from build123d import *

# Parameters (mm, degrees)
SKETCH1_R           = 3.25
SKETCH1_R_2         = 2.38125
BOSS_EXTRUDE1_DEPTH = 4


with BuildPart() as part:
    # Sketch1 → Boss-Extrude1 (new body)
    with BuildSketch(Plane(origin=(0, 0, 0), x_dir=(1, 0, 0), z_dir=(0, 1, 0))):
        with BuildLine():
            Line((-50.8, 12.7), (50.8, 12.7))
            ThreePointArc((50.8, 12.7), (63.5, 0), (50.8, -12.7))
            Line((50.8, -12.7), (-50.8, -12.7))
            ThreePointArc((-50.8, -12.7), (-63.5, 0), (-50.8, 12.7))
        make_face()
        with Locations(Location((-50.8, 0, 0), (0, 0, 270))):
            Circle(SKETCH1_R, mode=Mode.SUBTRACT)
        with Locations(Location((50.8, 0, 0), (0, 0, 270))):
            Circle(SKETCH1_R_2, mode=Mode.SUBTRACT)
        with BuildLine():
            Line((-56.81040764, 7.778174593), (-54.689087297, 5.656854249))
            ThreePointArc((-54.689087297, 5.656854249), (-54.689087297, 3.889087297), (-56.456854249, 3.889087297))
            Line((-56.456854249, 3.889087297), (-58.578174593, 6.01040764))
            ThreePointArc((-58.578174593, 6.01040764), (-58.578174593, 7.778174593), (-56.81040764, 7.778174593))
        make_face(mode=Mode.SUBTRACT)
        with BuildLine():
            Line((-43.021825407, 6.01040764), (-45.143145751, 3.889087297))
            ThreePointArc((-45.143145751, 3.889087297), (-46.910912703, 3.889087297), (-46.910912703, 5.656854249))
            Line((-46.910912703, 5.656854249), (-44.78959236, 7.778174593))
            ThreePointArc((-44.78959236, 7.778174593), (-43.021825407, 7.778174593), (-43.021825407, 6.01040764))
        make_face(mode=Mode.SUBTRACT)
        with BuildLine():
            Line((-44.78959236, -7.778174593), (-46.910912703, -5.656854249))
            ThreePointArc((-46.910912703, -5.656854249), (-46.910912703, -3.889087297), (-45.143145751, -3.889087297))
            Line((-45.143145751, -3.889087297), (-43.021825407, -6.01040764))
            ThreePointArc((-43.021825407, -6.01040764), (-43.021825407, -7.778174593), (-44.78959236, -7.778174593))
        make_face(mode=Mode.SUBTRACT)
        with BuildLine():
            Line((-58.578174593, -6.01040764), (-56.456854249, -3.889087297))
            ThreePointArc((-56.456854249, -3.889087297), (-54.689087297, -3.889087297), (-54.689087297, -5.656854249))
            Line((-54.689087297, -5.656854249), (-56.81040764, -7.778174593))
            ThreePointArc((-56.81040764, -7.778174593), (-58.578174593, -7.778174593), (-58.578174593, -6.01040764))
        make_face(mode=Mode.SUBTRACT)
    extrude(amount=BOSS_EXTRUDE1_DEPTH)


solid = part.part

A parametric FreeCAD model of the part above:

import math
import FreeCAD as App
import Part
import Sketcher
Q = App.Units.Quantity

doc = App.newDocument("Part")
params = doc.addObject("Spreadsheet::Sheet", "Params")
for row, (alias, value) in enumerate([
    ("sketch1_diameter", "6.5 mm"),
    ("sketch1_radius", "12.7 mm"),
    ("sketch1_radius2", "1.25 mm"),
    ("sketch1_length", "3 mm"),
    ("sketch1_width", "101.6 mm"),
    ("pad1_length", "4 mm"),
], start=1):
    params.set(f"A{row}", alias)
    params.set(f"B{row}", "=" + value)
    params.setAlias(f"B{row}", alias)

body = doc.addObject("PartDesign::Body", "Body")

# Sketch on XZ plane
sketch1 = doc.addObject("Sketcher::SketchObject", "Sketch")
body.addObject(sketch1)
sketch1.AttachmentSupport = (doc.XZ_Plane, [""])
sketch1.MapMode = "FlatFace"
sketch1.addGeometry([
    Part.LineSegment(App.Vector(50.8, -12.7, 0), App.Vector(-50.8, -12.7, 0)),  # 0
    Part.ArcOfCircle(Part.Circle(App.Vector(-50.8, 0, 0), App.Vector(0, 0, 1), 12.7), math.radians(90), math.radians(270)),  # 1
    Part.LineSegment(App.Vector(-50.8, 12.7, 0), App.Vector(50.8, 12.7, 0)),  # 2
    Part.ArcOfCircle(Part.Circle(App.Vector(50.8, 0, 0), App.Vector(0, 0, 1), 12.7), math.radians(-90), math.radians(90)),  # 3
    Part.Circle(App.Vector(50.8, 0, 0), App.Vector(0, 0, 1), 2.4),  # 4
    Part.LineSegment(App.Vector(-44.8, 7.8, 0), App.Vector(-46.9, 5.7, 0)),  # 5
    Part.ArcOfCircle(Part.Circle(App.Vector(-46, 4.8, 0), App.Vector(0, 0, 1), 1.2), math.radians(135), math.radians(315)),  # 6
    Part.LineSegment(App.Vector(-45.1, 3.9, 0), App.Vector(-43, 6, 0)),  # 7
    Part.ArcOfCircle(Part.Circle(App.Vector(-43.9, 6.9, 0), App.Vector(0, 0, 1), 1.2), math.radians(-45), math.radians(135)),  # 8
    Part.LineSegment(App.Vector(-58.6, 6, 0), App.Vector(-56.5, 3.9, 0)),  # 9
    Part.ArcOfCircle(Part.Circle(App.Vector(-55.6, 4.8, 0), App.Vector(0, 0, 1), 1.2), math.radians(-135), math.radians(45)),  # 10
    Part.LineSegment(App.Vector(-54.7, 5.7, 0), App.Vector(-56.8, 7.8, 0)),  # 11
    Part.ArcOfCircle(Part.Circle(App.Vector(-57.7, 6.9, 0), App.Vector(0, 0, 1), 1.2), math.radians(45), math.radians(225)),  # 12
    Part.Circle(App.Vector(-50.8, 0, 0), App.Vector(0, 0, 1), 3.2),  # 13
    Part.LineSegment(App.Vector(-43, -6, 0), App.Vector(-45.1, -3.9, 0)),  # 14
    Part.ArcOfCircle(Part.Circle(App.Vector(-46, -4.8, 0), App.Vector(0, 0, 1), 1.2), math.radians(45), math.radians(225)),  # 15
    Part.LineSegment(App.Vector(-46.9, -5.7, 0), App.Vector(-44.8, -7.8, 0)),  # 16
    Part.ArcOfCircle(Part.Circle(App.Vector(-43.9, -6.9, 0), App.Vector(0, 0, 1), 1.2), math.radians(-135), math.radians(45)),  # 17
    Part.LineSegment(App.Vector(-56.8, -7.8, 0), App.Vector(-54.7, -5.7, 0)),  # 18
    Part.ArcOfCircle(Part.Circle(App.Vector(-55.6, -4.8, 0), App.Vector(0, 0, 1), 1.2), math.radians(-45), math.radians(135)),  # 19
    Part.LineSegment(App.Vector(-56.5, -3.9, 0), App.Vector(-58.6, -6, 0)),  # 20
    Part.ArcOfCircle(Part.Circle(App.Vector(-57.7, -6.9, 0), App.Vector(0, 0, 1), 1.2), math.radians(135), math.radians(315)),  # 21
], False)
sketch1.addConstraint([
    Sketcher.Constraint("Tangent", 0, 2, 1, 2),
    Sketcher.Constraint("Tangent", 1, 1, 2, 1),
    Sketcher.Constraint("Tangent", 2, 2, 3, 2),
    Sketcher.Constraint("Tangent", 3, 1, 0, 1),
    Sketcher.Constraint("Tangent", 5, 2, 6, 1),
    Sketcher.Constraint("Tangent", 6, 2, 7, 1),
    Sketcher.Constraint("Tangent", 7, 2, 8, 1),
    Sketcher.Constraint("Tangent", 8, 2, 5, 1),
    Sketcher.Constraint("Tangent", 9, 2, 10, 1),
    Sketcher.Constraint("Tangent", 10, 2, 11, 1),
    Sketcher.Constraint("Tangent", 11, 2, 12, 1),
    Sketcher.Constraint("Tangent", 12, 2, 9, 1),
    Sketcher.Constraint("Tangent", 14, 2, 15, 1),
    Sketcher.Constraint("Tangent", 15, 2, 16, 1),
    Sketcher.Constraint("Tangent", 16, 2, 17, 1),
    Sketcher.Constraint("Tangent", 17, 2, 14, 1),
    Sketcher.Constraint("Tangent", 18, 2, 19, 1),
    Sketcher.Constraint("Tangent", 19, 2, 20, 1),
    Sketcher.Constraint("Tangent", 20, 2, 21, 1),
    Sketcher.Constraint("Tangent", 21, 2, 18, 1),
    Sketcher.Constraint("Horizontal", 0),
    Sketcher.Constraint("Horizontal", 2),
    Sketcher.Constraint("Coincident", 4, 3, 3, 3),
    Sketcher.Constraint("Coincident", 13, 3, 1, 3),
    Sketcher.Constraint("Equal", 6, 8),
    Sketcher.Constraint("Equal", 8, 10),
    Sketcher.Constraint("Equal", 10, 12),
    Sketcher.Constraint("Equal", 12, 15),
    Sketcher.Constraint("Equal", 15, 17),
    Sketcher.Constraint("Equal", 17, 19),
    Sketcher.Constraint("Equal", 19, 21),
    Sketcher.Constraint("Symmetric", 1, 3, 3, 3, -1, 1),
    Sketcher.Constraint("Symmetric", 6, 3, 15, 3, -1),
    Sketcher.Constraint("Symmetric", 8, 3, 17, 3, -1),
    Sketcher.Constraint("Symmetric", 10, 3, 19, 3, -1),
    Sketcher.Constraint("Symmetric", 12, 3, 21, 3, -1),
    Sketcher.Constraint("Perpendicular", 7, 9),
    Sketcher.Constraint("Parallel", 11, 14),
    Sketcher.Constraint("Horizontal", 6, 3, 10, 3),
    Sketcher.Constraint("Horizontal", 8, 3, 12, 3),
    Sketcher.Constraint("Diameter", 13, Q("6.5 mm")),
    Sketcher.Constraint("Radius", 1, Q("12.7 mm")),
    Sketcher.Constraint("Radius", 6, Q("1.25 mm")),
    Sketcher.Constraint("Distance", 5, Q("3 mm")),
    Sketcher.Constraint("DistanceX", 0, 2, 0, 1, Q("101.6 mm")),
    Sketcher.Constraint("Diameter", 4, Q("4.7625 mm")),
    Sketcher.Constraint("DistanceX", 6, 3, -1, 1, Q("46.027029 mm")),
    Sketcher.Constraint("DistanceY", -1, 1, 6, 3, Q("4.772971 mm")),
    Sketcher.Constraint("DistanceX", 10, 3, -1, 1, Q("55.572971 mm")),
])
sketch1.setExpression("Constraints[40]", "Params.sketch1_diameter")
sketch1.setExpression("Constraints[41]", "Params.sketch1_radius")
sketch1.setExpression("Constraints[42]", "Params.sketch1_radius2")
sketch1.setExpression("Constraints[43]", "Params.sketch1_length")
sketch1.setExpression("Constraints[44]", "Params.sketch1_width")
pad1 = doc.addObject("PartDesign::Pad", "Pad")
body.addObject(pad1)
pad1.Profile = sketch1
pad1.setExpression("Length", "Params.pad1_length")
pad1.Reversed = True

doc.recompute()
